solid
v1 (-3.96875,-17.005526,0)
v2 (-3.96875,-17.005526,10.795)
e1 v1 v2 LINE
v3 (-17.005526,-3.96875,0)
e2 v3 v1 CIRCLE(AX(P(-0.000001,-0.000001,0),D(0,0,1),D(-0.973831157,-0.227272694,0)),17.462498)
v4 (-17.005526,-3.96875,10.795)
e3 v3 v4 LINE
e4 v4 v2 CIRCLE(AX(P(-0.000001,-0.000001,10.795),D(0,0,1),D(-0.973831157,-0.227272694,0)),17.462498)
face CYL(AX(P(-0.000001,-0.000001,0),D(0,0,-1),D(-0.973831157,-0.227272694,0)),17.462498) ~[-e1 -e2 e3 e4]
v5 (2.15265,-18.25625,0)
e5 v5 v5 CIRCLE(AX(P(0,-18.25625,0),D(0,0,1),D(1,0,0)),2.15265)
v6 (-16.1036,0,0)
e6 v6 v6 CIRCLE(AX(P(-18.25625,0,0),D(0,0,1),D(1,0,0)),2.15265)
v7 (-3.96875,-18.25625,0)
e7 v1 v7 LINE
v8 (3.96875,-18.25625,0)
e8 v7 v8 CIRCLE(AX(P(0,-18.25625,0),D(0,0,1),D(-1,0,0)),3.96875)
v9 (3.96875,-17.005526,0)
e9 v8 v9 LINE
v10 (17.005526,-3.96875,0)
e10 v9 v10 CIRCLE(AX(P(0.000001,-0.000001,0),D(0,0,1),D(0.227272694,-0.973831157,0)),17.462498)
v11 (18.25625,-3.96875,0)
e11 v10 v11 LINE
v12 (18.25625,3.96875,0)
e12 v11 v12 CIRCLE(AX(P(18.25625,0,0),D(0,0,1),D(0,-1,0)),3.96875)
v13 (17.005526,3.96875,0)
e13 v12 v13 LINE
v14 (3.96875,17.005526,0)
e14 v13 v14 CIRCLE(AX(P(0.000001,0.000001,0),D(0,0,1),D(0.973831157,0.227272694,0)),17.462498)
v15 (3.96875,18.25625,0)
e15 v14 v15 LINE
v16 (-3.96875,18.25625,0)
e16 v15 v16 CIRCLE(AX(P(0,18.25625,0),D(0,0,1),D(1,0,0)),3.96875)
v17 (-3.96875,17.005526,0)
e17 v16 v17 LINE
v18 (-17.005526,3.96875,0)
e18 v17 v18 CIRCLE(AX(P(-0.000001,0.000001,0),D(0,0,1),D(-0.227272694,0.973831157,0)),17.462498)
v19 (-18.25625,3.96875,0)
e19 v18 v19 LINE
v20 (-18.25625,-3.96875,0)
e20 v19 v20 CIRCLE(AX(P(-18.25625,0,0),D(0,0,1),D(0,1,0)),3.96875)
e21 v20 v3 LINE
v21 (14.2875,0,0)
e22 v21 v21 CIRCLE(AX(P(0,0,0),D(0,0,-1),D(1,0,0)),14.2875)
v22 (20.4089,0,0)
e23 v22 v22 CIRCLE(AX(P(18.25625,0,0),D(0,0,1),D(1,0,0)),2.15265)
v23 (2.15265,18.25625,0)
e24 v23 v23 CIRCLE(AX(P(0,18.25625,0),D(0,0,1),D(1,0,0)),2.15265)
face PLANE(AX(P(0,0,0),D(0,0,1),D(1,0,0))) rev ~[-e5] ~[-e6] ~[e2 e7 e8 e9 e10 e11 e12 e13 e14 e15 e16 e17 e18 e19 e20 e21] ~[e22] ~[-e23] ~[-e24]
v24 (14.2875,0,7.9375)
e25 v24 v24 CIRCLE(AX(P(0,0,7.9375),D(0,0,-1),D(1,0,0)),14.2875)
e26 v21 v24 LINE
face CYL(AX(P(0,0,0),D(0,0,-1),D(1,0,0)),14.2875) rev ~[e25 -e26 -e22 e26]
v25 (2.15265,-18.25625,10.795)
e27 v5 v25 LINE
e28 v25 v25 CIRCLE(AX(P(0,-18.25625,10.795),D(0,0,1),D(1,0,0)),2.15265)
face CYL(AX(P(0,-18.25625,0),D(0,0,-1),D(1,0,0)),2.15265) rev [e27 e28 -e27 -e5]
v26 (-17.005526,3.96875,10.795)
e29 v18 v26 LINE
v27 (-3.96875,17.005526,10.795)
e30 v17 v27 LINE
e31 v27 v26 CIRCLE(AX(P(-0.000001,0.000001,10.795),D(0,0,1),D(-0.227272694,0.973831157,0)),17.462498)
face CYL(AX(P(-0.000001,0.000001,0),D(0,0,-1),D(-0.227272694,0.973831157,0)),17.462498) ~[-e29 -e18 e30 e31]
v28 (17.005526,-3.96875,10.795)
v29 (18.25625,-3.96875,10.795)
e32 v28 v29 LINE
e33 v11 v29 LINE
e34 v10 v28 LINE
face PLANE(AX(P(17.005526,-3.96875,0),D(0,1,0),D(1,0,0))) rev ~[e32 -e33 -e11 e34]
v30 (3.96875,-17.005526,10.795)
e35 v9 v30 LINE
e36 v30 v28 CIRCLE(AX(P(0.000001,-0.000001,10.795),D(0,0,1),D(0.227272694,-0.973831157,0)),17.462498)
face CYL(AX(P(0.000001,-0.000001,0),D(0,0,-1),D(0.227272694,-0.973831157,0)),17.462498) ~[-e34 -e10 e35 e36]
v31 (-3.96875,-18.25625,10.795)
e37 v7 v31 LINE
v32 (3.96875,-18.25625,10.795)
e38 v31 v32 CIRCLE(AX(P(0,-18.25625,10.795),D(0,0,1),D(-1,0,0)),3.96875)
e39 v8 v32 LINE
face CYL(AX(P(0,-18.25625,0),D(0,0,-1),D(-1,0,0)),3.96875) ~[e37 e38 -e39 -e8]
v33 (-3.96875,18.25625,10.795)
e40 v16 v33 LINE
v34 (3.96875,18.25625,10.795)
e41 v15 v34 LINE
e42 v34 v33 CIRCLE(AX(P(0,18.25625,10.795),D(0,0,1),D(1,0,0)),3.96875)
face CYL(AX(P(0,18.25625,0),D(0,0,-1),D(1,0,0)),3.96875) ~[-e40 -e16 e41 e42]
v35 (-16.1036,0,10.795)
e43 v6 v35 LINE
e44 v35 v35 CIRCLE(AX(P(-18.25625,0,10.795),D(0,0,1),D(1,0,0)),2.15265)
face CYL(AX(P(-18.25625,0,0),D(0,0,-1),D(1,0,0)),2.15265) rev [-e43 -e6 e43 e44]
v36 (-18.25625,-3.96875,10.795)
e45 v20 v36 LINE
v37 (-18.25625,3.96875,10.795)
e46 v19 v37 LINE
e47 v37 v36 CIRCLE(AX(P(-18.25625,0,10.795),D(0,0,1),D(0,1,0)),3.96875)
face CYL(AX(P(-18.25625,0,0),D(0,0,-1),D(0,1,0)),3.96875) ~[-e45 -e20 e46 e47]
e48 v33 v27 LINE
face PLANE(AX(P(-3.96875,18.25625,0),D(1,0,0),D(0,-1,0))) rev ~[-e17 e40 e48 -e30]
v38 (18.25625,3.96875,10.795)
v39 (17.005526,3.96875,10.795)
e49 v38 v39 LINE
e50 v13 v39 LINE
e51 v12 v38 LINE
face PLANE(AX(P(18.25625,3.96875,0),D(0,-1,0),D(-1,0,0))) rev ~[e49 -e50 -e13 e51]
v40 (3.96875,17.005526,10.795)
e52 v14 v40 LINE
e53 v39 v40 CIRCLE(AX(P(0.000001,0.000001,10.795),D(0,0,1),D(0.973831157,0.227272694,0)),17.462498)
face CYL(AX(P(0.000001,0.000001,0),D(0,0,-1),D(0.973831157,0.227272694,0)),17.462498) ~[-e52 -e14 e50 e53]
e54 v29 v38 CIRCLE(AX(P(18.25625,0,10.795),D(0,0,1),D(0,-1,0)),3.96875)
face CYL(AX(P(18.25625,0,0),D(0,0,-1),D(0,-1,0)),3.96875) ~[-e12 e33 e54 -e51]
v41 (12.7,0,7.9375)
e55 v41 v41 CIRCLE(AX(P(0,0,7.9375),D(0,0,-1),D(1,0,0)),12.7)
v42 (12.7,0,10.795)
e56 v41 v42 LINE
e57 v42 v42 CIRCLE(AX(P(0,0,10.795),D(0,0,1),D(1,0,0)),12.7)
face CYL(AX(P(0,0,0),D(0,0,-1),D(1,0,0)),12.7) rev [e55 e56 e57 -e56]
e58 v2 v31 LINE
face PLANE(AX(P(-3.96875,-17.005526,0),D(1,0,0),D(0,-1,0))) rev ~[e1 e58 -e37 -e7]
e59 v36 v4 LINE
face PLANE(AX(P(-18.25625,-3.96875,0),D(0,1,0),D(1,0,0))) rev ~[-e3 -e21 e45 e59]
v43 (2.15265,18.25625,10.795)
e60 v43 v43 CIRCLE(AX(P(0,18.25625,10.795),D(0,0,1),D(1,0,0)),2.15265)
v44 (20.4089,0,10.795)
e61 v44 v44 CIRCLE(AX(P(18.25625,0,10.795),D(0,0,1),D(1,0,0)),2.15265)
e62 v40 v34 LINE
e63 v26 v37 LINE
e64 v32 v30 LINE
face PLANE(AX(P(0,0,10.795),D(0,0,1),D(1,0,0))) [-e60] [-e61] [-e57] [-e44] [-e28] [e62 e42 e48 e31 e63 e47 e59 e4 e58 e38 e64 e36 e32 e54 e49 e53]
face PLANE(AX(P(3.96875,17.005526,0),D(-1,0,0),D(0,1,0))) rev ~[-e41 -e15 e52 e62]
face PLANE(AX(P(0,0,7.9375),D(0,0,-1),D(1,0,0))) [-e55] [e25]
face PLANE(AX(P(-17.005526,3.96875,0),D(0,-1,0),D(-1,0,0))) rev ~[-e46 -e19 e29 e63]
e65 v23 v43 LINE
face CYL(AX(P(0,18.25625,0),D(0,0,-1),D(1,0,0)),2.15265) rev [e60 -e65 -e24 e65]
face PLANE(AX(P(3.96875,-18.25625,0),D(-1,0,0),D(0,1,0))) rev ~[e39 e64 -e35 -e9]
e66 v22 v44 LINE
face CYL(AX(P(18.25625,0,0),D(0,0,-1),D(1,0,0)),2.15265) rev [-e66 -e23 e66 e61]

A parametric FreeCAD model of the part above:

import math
import FreeCAD as App
import Part
import Sketcher

V = App.Vector
Q = App.Units.Quantity

doc = App.newDocument("Part")
body = doc.addObject("PartDesign::Body", "Body")

sketch1 = body.newObject("Sketcher::SketchObject", "Sketch")
sketch1.AttachmentSupport = (doc.getObject("XY_Plane"), [""])
sketch1.MapMode = "FlatFace"
sketch1.addGeometry(Part.LineSegment(V(-17, 4, 0), V(-18.3, 4, 0)), False)
sketch1.addGeometry(Part.ArcOfCircle(Part.Circle(V(-18.3, 0, 0), V(0, 0, 1), 4), math.radians(90), math.radians(270)), False)
sketch1.addGeometry(Part.LineSegment(V(-18.3, -4, 0), V(-17, -4, 0)), False)
sketch1.addGeometry(Part.ArcOfCircle(Part.Circle(V(0, 0, 0), V(0, 0, 1), 17.5), math.radians(-167), math.radians(-103)), False)
sketch1.addGeometry(Part.LineSegment(V(-4, -17, 0), V(-4, -18.3, 0)), False)
sketch1.addGeometry(Part.ArcOfCircle(Part.Circle(V(0, -18.3, 0), V(0, 0, 1), 4), math.radians(180), math.radians(360)), False)
sketch1.addGeometry(Part.LineSegment(V(4, -18.3, 0), V(4, -17, 0)), False)
sketch1.addGeometry(Part.ArcOfCircle(Part.Circle(V(0, 0, 0), V(0, 0, 1), 17.5), math.radians(-77), math.radians(-13)), False)
sketch1.addGeometry(Part.LineSegment(V(17, -4, 0), V(18.3, -4, 0)), False)
sketch1.addGeometry(Part.ArcOfCircle(Part.Circle(V(18.3, 0, 0), V(0, 0, 1), 4), math.radians(-90), math.radians(90)), False)
sketch1.addGeometry(Part.LineSegment(V(18.3, 4, 0), V(17, 4, 0)), False)
sketch1.addGeometry(Part.ArcOfCircle(Part.Circle(V(0, 0, 0), V(0, 0, 1), 17.5), math.radians(13), math.radians(77)), False)
sketch1.addGeometry(Part.LineSegment(V(4, 17, 0), V(4, 18.3, 0)), False)
sketch1.addGeometry(Part.ArcOfCircle(Part.Circle(V(0, 18.3, 0), V(0, 0, 1), 4), math.radians(0), math.radians(180)), False)
sketch1.addGeometry(Part.LineSegment(V(-4, 18.3, 0), V(-4, 17, 0)), False)
sketch1.addGeometry(Part.ArcOfCircle(Part.Circle(V(0, 0, 0), V(0, 0, 1), 17.5), math.radians(103), math.radians(167)), False)
sketch1.addGeometry(Part.Circle(V(0, -18.3, 0), V(0, 0, 1), 2.2), False)
sketch1.addGeometry(Part.Circle(V(-18.3, 0, 0), V(0, 0, 1), 2.2), False)
sketch1.addGeometry(Part.Circle(V(0, 0, 0), V(0, 0, 1), 12.7), False)
sketch1.addGeometry(Part.Circle(V(18.3, 0, 0), V(0, 0, 1), 2.2), False)
sketch1.addGeometry(Part.Circle(V(0, 18.3, 0), V(0, 0, 1), 2.2), False)
sketch1.addConstraint(Sketcher.Constraint("Tangent", 0, 2, 1, 1))
sketch1.addConstraint(Sketcher.Constraint("Tangent", 1, 2, 2, 1))
sketch1.addConstraint(Sketcher.Constraint("Coincident", 2, 2, 3, 1))
sketch1.addConstraint(Sketcher.Constraint("Coincident", 3, 2, 4, 1))
sketch1.addConstraint(Sketcher.Constraint("Tangent", 4, 2, 5, 1))
sketch1.addConstraint(Sketcher.Constraint("Tangent", 5, 2, 6, 1))
sketch1.addConstraint(Sketcher.Constraint("Coincident", 6, 2, 7, 1))
sketch1.addConstraint(Sketcher.Constraint("Coincident", 7, 2, 8, 1))
sketch1.addConstraint(Sketcher.Constraint("Tangent", 8, 2, 9, 1))
sketch1.addConstraint(Sketcher.Constraint("Tangent", 9, 2, 10, 1))
sketch1.addConstraint(Sketcher.Constraint("Coincident", 10, 2, 11, 1))
sketch1.addConstraint(Sketcher.Constraint("Coincident", 11, 2, 12, 1))
sketch1.addConstraint(Sketcher.Constraint("Tangent", 12, 2, 13, 1))
sketch1.addConstraint(Sketcher.Constraint("Tangent", 13, 2, 14, 1))
sketch1.addConstraint(Sketcher.Constraint("Coincident", 14, 2, 15, 1))
sketch1.addConstraint(Sketcher.Constraint("Coincident", 15, 2, 0, 1))
sketch1.addConstraint(Sketcher.Constraint("Horizontal", 0))
sketch1.addConstraint(Sketcher.Constraint("Horizontal", 2))
sketch1.addConstraint(Sketcher.Constraint("Vertical", 4))
sketch1.addConstraint(Sketcher.Constraint("Vertical", 6))
sketch1.addConstraint(Sketcher.Constraint("Horizontal", 8))
sketch1.addConstraint(Sketcher.Constraint("Horizontal", 10))
sketch1.addConstraint(Sketcher.Constraint("Vertical", 12))
sketch1.addConstraint(Sketcher.Constraint("Vertical", 14))
sketch1.addConstraint(Sketcher.Constraint("Coincident", 3, 3, -1, 1))
sketch1.addConstraint(Sketcher.Constraint("Coincident", 7, 3, -1, 1))
sketch1.addConstraint(Sketcher.Constraint("Coincident", 11, 3, -1, 1))
sketch1.addConstraint(Sketcher.Constraint("Coincident", 15, 3, -1, 1))
sketch1.addConstraint(Sketcher.Constraint("Coincident", 18, 3, -1, 1))
sketch1.addConstraint(Sketcher.Constraint("Coincident", 16, 3, 5, 3))
sketch1.addConstraint(Sketcher.Constraint("Coincident", 17, 3, 1, 3))
sketch1.addConstraint(Sketcher.Constraint("Coincident", 19, 3, 9, 3))
sketch1.addConstraint(Sketcher.Constraint("Coincident", 20, 3, 13, 3))
sketch1.addConstraint(Sketcher.Constraint("Equal", 1, 5))
sketch1.addConstraint(Sketcher.Constraint("Equal", 3, 7))
sketch1.addConstraint(Sketcher.Constraint("Equal", 5, 9))
sketch1.addConstraint(Sketcher.Constraint("Equal", 7, 11))
sketch1.addConstraint(Sketcher.Constraint("Equal", 9, 13))
sketch1.addConstraint(Sketcher.Constraint("Equal", 11, 15))
sketch1.addConstraint(Sketcher.Constraint("Equal", 16, 17))
sketch1.addConstraint(Sketcher.Constraint("Equal", 17, 19))
sketch1.addConstraint(Sketcher.Constraint("Equal", 19, 20))
sketch1.addConstraint(Sketcher.Constraint("Symmetric", 1, 3, 9, 3, -1, 1))
sketch1.addConstraint(Sketcher.Constraint("Symmetric", 5, 3, 13, 3, -1, 1))
sketch1.addConstraint(Sketcher.Constraint("PointOnObject", 1, 3, -1))
sketch1.addConstraint(Sketcher.Constraint("PointOnObject", 5, 3, -2))
sketch1.addConstraint(Sketcher.Constraint("Equal", 10, 4))
sketch1.addConstraint(Sketcher.Constraint("Diameter", 18, Q("1 in")))
sketch1.addConstraint(Sketcher.Constraint("Radius", 1, Q("0.15625 in")))
sketch1.addConstraint(Sketcher.Constraint("Radius", 3, Q("0.6874999 in")))
sketch1.addConstraint(Sketcher.Constraint("Diameter", 16, Q("0.1695 in")))
sketch1.addConstraint(Sketcher.Constraint("DistanceX", 1, 3, -1, 1, Q("0.71875 in")))
pad1 = body.newObject("PartDesign::Pad", "Pad")
pad1.Profile = sketch1
pad1.Length = Q("0.425 in")

sketch2 = body.newObject("Sketcher::SketchObject", "Sketch001")
sketch2.AttachmentSupport = (doc.getObject("XY_Plane"), [""])
sketch2.MapMode = "FlatFace"
sketch2.addGeometry(Part.Circle(V(0, 0, 0), V(0, 0, 1), 14), False)
sketch2.addConstraint(Sketcher.Constraint("Coincident", 0, 3, -1, 1))
sketch2.addConstraint(Sketcher.Constraint("Diameter", 0, Q("1.125 in")))
pocket1 = body.newObject("PartDesign::Pocket", "Pocket")
pocket1.Profile = sketch2
pocket1.Length = Q("0.3125 in")
pocket1.Reversed = True

doc.recompute()
